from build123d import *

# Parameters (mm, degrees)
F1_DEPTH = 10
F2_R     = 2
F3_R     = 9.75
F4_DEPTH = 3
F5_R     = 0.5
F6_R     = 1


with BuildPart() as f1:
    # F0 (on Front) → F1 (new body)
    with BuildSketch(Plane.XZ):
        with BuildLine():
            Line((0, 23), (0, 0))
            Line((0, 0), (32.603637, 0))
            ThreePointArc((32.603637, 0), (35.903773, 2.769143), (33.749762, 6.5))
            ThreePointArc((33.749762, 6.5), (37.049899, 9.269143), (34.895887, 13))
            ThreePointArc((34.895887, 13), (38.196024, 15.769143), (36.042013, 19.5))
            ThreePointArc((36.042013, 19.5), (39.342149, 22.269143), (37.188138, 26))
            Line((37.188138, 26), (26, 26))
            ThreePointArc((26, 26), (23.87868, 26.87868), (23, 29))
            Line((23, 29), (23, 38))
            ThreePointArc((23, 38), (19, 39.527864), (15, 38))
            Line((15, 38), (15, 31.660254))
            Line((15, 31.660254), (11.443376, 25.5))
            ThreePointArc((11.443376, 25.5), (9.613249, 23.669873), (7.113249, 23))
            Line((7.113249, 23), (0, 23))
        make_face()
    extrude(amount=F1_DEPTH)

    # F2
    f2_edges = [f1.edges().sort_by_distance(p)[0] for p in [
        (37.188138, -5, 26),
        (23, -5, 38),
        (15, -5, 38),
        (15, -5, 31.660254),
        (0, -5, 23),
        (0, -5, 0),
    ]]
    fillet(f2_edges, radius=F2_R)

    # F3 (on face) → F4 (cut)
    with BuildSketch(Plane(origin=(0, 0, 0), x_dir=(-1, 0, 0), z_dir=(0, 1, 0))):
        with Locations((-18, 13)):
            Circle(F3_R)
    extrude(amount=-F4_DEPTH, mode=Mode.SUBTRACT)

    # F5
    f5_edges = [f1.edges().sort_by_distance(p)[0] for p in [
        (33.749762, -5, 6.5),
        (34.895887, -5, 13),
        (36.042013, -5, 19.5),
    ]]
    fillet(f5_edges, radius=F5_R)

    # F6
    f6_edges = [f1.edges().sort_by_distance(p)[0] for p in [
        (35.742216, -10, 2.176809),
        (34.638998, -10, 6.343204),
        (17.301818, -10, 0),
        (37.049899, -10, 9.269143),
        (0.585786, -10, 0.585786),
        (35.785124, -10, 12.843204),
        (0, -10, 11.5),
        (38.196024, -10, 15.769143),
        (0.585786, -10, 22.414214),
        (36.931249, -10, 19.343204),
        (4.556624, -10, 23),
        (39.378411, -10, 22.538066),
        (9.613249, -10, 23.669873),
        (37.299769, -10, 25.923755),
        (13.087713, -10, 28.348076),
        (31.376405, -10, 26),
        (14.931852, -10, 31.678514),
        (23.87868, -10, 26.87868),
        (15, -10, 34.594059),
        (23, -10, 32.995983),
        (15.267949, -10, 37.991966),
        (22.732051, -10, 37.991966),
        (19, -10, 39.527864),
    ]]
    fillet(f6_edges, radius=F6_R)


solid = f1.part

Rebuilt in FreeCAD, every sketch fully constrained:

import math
import FreeCAD as App
import Part
import Sketcher
from FreeCAD import Vector
Q = App.Units.Quantity


def edges_at(feature, points):
    """Names of the edges that pass closest to the given points."""
    edges = feature.Shape.Edges
    near = lambda p: min(range(len(edges)), key=lambda i: edges[i].distToShape(Part.Vertex(*p))[0])
    return sorted({f"Edge{near(p) + 1}" for p in points})

doc = App.newDocument("Part")
body = doc.addObject("PartDesign::Body", "Body")

# Sketch on XZ plane
sketch1 = body.newObject("Sketcher::SketchObject", "Sketch")
sketch1.AttachmentSupport = (doc.getObject("XZ_Plane"), [""])
sketch1.MapMode = "FlatFace"
sketch1.addGeometry(Part.LineSegment(Vector(0, 23, 0), Vector(0, 0, 0)), False)
sketch1.addGeometry(Part.LineSegment(Vector(0, 0, 0), Vector(32.603637, 0, 0)), False)
sketch1.addGeometry(Part.ArcOfCircle(Part.Circle(Vector(32.603637, 3.351046, 0), Vector(0, 0, 1), 3.351046), math.radians(-89.999992), math.radians(69.999999)), False)
sketch1.addGeometry(Part.ArcOfCircle(Part.Circle(Vector(33.749763, 9.851046, 0), Vector(0, 0, 1), 3.351046), math.radians(-90.000012), math.radians(70.000019)), False)
sketch1.addGeometry(Part.ArcOfCircle(Part.Circle(Vector(34.895888, 16.351046, 0), Vector(0, 0, 1), 3.351046), math.radians(-90.00001), math.radians(69.999999)), False)
sketch1.addGeometry(Part.ArcOfCircle(Part.Circle(Vector(36.042013, 22.851046, 0), Vector(0, 0, 1), 3.351046), math.radians(-89.999992), math.radians(69.999999)), False)
sketch1.addGeometry(Part.LineSegment(Vector(37.188138, 26, 0), Vector(26, 26, 0)), False)
sketch1.addGeometry(Part.ArcOfCircle(Part.Circle(Vector(26.000001, 29.000001, 0), Vector(0, 0, 1), 3.000001), math.radians(-179.999978), math.radians(-90.000022)), False)
sketch1.addGeometry(Part.LineSegment(Vector(23, 29, 0), Vector(23, 38, 0)), False)
sketch1.addGeometry(Part.ArcOfCircle(Part.Circle(Vector(19, 33.527864, 0), Vector(0, 0, 1), 6), math.radians(48.189686), math.radians(131.810314)), False)
sketch1.addGeometry(Part.LineSegment(Vector(15, 38, 0), Vector(15, 31.660254, 0)), False)
sketch1.addGeometry(Part.LineSegment(Vector(15, 31.660254, 0), Vector(11.443376, 25.5, 0)), False)
sketch1.addGeometry(Part.ArcOfCircle(Part.Circle(Vector(7.113249, 28, 0), Vector(0, 0, 1), 5), math.radians(-89.999999), math.radians(-30)), False)
sketch1.addGeometry(Part.LineSegment(Vector(7.113249, 23, 0), Vector(0, 23, 0)), False)
sketch1.addConstraint(Sketcher.Constraint("Coincident", 0, 2, 1, 1))
sketch1.addConstraint(Sketcher.Constraint("Tangent", 1, 2, 2, 1))
sketch1.addConstraint(Sketcher.Constraint("Coincident", 2, 2, 3, 1))
sketch1.addConstraint(Sketcher.Constraint("Coincident", 3, 2, 4, 1))
sketch1.addConstraint(Sketcher.Constraint("Coincident", 4, 2, 5, 1))
sketch1.addConstraint(Sketcher.Constraint("Coincident", 5, 2, 6, 1))
sketch1.addConstraint(Sketcher.Constraint("Tangent", 6, 2, 7, 2))
sketch1.addConstraint(Sketcher.Constraint("Tangent", 7, 1, 8, 1))
sketch1.addConstraint(Sketcher.Constraint("Coincident", 8, 2, 9, 1))
sketch1.addConstraint(Sketcher.Constraint("Coincident", 9, 2, 10, 1))
sketch1.addConstraint(Sketcher.Constraint("Coincident", 10, 2, 11, 1))
sketch1.addConstraint(Sketcher.Constraint("Tangent", 11, 2, 12, 2))
sketch1.addConstraint(Sketcher.Constraint("Tangent", 12, 1, 13, 1))
sketch1.addConstraint(Sketcher.Constraint("Coincident", 13, 2, 0, 1))
sketch1.addConstraint(Sketcher.Constraint("Vertical", 0))
sketch1.addConstraint(Sketcher.Constraint("Horizontal", 1))
sketch1.addConstraint(Sketcher.Constraint("Horizontal", 6))
sketch1.addConstraint(Sketcher.Constraint("Vertical", 8))
sketch1.addConstraint(Sketcher.Constraint("Vertical", 10))
sketch1.addConstraint(Sketcher.Constraint("Horizontal", 13))
sketch1.addConstraint(Sketcher.Constraint("Coincident", 0, 2, -1, 1))
sketch1.addConstraint(Sketcher.Constraint("Equal", 2, 3))
sketch1.addConstraint(Sketcher.Constraint("Equal", 3, 4))
sketch1.addConstraint(Sketcher.Constraint("Equal", 4, 5))
sketch1.addConstraint(Sketcher.Constraint("Horizontal", 8, 2, 9, 2))
sketch1.addConstraint(Sketcher.Constraint("Vertical", 3, 3, 2, 2))
sketch1.addConstraint(Sketcher.Constraint("Vertical", 4, 3, 3, 2))
sketch1.addConstraint(Sketcher.Constraint("Vertical", 5, 3, 4, 2))
sketch1.addConstraint(Sketcher.Constraint("Radius", 7, Q("3.000001 mm")))
sketch1.addConstraint(Sketcher.Constraint("Radius", 9, Q("6 mm")))
sketch1.addConstraint(Sketcher.Constraint("Radius", 12, Q("5 mm")))
sketch1.addConstraint(Sketcher.Constraint("DistanceY", 0, 2, 0, 1, Q("23 mm")))
sketch1.addConstraint(Sketcher.Constraint("DistanceY", 8, 1, 8, 2, Q("9 mm")))
sketch1.addConstraint(Sketcher.Constraint("Angle", 11, Q("-119.999998 deg")))
sketch1.addConstraint(Sketcher.Constraint("DistanceX", -1, 1, 7, 3, Q("26.000001 mm")))
sketch1.addConstraint(Sketcher.Constraint("DistanceY", -1, 1, 7, 3, Q("29.000001 mm")))
sketch1.addConstraint(Sketcher.Constraint("DistanceX", -1, 1, 9, 3, Q("19 mm")))
sketch1.addConstraint(Sketcher.Constraint("DistanceY", -1, 1, 3, 2, Q("13 mm")))
sketch1.addConstraint(Sketcher.Constraint("DistanceY", 3, 3, 5, 3, Q("13 mm")))
sketch1.addConstraint(Sketcher.Constraint("DistanceY", -1, 1, 2, 2, Q("6.5 mm")))
sketch1.addConstraint(Sketcher.Constraint("Radius", 2, Q("3.351046 mm")))
sketch1.addConstraint(Sketcher.Constraint("DistanceX", 6, 2, 6, 1, Q("11.188138 mm")))
sketch1.addConstraint(Sketcher.Constraint("DistanceX", 13, 2, 13, 1, Q("7.113249 mm")))
pad1 = body.newObject("PartDesign::Pad", "Pad")
pad1.Profile = sketch1
pad1.Length = 10
doc.recompute()

fillet = body.newObject("PartDesign::Fillet", "Fillet")
fillet.Base = (pad1, edges_at(pad1, [
    (37.188, -5, 26),
    (23, -5, 38),
    (15, -5, 38),
    (15, -5, 31.66),
    (0, -5, 23),
    (0, -5, 0),
]))
fillet.Radius = 2

# Sketch on XZ plane
sketch2 = body.newObject("Sketcher::SketchObject", "Sketch001")
sketch2.AttachmentSupport = (doc.getObject("XZ_Plane"), [""])
sketch2.MapMode = "FlatFace"
sketch2.addGeometry(Part.Circle(Vector(18, 13, 0), Vector(0, 0, 1), 9.75), False)
sketch2.addConstraint(Sketcher.Constraint("Diameter", 0, Q("19.5 mm")))
sketch2.addConstraint(Sketcher.Constraint("DistanceX", -1, 1, 0, 3, Q("18 mm")))
sketch2.addConstraint(Sketcher.Constraint("DistanceY", -1, 1, 0, 3, Q("13 mm")))
pocket1 = body.newObject("PartDesign::Pocket", "Pocket")
pocket1.Profile = sketch2
pocket1.Length = 3
pocket1.Reversed = True
doc.recompute()

fillet2 = body.newObject("PartDesign::Fillet", "Fillet001")
fillet2.Base = (pocket1, edges_at(pocket1, [(33.75, -5, 6.5), (34.896, -5, 13), (36.042, -5, 19.5)]))
fillet2.Radius = 0.5
doc.recompute()

fillet3 = body.newObject("PartDesign::Fillet", "Fillet002")
fillet3.Base = (fillet2, edges_at(fillet2, [
    (35.742, -10, 2.177),
    (34.639, -10, 6.343),
    (17.302, -10, 0),
    (37.05, -10, 9.269),
    (0.586, -10, 0.586),
    (35.785, -10, 12.843),
    (0, -10, 11.5),
    (38.196, -10, 15.769),
    (0.586, -10, 22.414),
    (36.931, -10, 19.343),
    (4.557, -10, 23),
    (39.378, -10, 22.538),
    (9.613, -10, 23.67),
    (37.3, -10, 25.924),
    (13.088, -10, 28.348),
    (31.376, -10, 26),
    (14.932, -10, 31.679),
    (23.879, -10, 26.879),
    (15, -10, 34.594),
    (23, -10, 32.996),
    (15.268, -10, 37.992),
    (22.732, -10, 37.992),
    (19, -10, 39.528),
]))
fillet3.Radius = 1

doc.recompute()
